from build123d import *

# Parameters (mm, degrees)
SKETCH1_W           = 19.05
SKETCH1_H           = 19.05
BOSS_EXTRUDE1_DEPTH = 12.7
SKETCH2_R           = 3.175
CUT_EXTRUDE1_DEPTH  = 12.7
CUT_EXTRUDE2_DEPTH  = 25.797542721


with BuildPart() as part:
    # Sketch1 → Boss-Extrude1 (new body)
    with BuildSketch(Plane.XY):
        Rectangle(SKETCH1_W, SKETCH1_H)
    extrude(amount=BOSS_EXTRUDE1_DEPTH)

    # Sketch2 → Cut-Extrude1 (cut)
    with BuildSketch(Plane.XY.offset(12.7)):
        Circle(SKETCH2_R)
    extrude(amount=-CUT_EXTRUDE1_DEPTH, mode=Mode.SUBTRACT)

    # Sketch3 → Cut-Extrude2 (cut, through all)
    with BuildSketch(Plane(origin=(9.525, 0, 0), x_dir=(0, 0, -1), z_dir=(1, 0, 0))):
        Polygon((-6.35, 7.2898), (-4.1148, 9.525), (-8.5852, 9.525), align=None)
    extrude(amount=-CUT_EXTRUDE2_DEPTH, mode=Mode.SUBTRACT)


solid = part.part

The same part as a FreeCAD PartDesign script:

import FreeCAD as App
import Part
import Sketcher
from FreeCAD import Vector
Q = App.Units.Quantity


def add_polygon(sketch, points):
    """Adds a closed chain of lines whose ends are joined by coincident constraints."""
    first, n = sketch.GeometryCount, len(points)
    for a, b in zip(points, points[1:] + points[:1]):
        sketch.addGeometry(Part.LineSegment(App.Vector(*a, 0), App.Vector(*b, 0)), False)
    for i in range(n):
        sketch.addConstraint(Sketcher.Constraint("Coincident", first + i, 2, first + (i + 1) % n, 1))

doc = App.newDocument("Part")
body = doc.addObject("PartDesign::Body", "Body")

# Sketch on XY plane
sketch1 = doc.addObject("Sketcher::SketchObject", "Sketch")
body.addObject(sketch1)
sketch1.AttachmentSupport = (doc.XY_Plane, [""])
sketch1.MapMode = "FlatFace"
add_polygon(sketch1, [(-10, 10), (-10, -10), (10, -10), (10, 10)])  # lines 0-3
sketch1.addConstraint([
    Sketcher.Constraint("Vertical", 0),
    Sketcher.Constraint("Horizontal", 1),
    Sketcher.Constraint("Vertical", 2),
    Sketcher.Constraint("Horizontal", 3),
    Sketcher.Constraint("Symmetric", 0, 2, 2, 2, -1, 1),
    Sketcher.Constraint("Equal", 3, 0),
    Sketcher.Constraint("DistanceX", 1, 1, 1, 2, Q("0.75 in")),
])
pad1 = doc.addObject("PartDesign::Pad", "Pad")
body.addObject(pad1)
pad1.Profile = sketch1
pad1.Length = Q("0.5 in")

# Sketch on XY plane
sketch2 = doc.addObject("Sketcher::SketchObject", "Sketch001")
body.addObject(sketch2)
sketch2.AttachmentSupport = (doc.XY_Plane, [""])
sketch2.MapMode = "FlatFace"
sketch2.AttachmentOffset = App.Placement(Vector(0, 0, 0.5 * 25.4), App.Rotation())
sketch2.addGeometry(Part.Circle(Vector(0, 0, 0), Vector(0, 0, 1), 3.2), False)
sketch2.addConstraint([
    Sketcher.Constraint("Coincident", 0, 3, -1, 1),
    Sketcher.Constraint("Diameter", 0, Q("0.25 in")),
])
pocket1 = doc.addObject("PartDesign::Pocket", "Pocket")
body.addObject(pocket1)
pocket1.Profile = sketch2
pocket1.Length = Q("0.5 in")

# Sketch on YZ plane
sketch3 = doc.addObject("Sketcher::SketchObject", "Sketch002")
body.addObject(sketch3)
sketch3.AttachmentSupport = (doc.YZ_Plane, [""])
sketch3.MapMode = "FlatFace"
sketch3.AttachmentOffset = App.Placement(Vector(0, 0, 0.375 * 25.4), App.Rotation())
add_polygon(sketch3, [(7.3, 6.3), (9.5, 4.1), (9.5, 8.6)])  # lines 0-2
sketch3.addConstraint([
    Sketcher.Constraint("Vertical", 1),
    Sketcher.Constraint("Perpendicular", 0, 2),
    Sketcher.Constraint("Equal", 0, 2),
    Sketcher.Constraint("DistanceY", 1, 1, 1, 2, Q("0.176 in")),
    Sketcher.Constraint("DistanceY", -1, 1, 2, 2, Q("0.25 in")),
    Sketcher.Constraint("DistanceX", -1, 1, 0, 2, Q("0.375 in")),
])
pocket2 = doc.addObject("PartDesign::Pocket", "Pocket001")
body.addObject(pocket2)
pocket2.Profile = sketch3
pocket2.Type = "ThroughAll"

doc.recompute()
